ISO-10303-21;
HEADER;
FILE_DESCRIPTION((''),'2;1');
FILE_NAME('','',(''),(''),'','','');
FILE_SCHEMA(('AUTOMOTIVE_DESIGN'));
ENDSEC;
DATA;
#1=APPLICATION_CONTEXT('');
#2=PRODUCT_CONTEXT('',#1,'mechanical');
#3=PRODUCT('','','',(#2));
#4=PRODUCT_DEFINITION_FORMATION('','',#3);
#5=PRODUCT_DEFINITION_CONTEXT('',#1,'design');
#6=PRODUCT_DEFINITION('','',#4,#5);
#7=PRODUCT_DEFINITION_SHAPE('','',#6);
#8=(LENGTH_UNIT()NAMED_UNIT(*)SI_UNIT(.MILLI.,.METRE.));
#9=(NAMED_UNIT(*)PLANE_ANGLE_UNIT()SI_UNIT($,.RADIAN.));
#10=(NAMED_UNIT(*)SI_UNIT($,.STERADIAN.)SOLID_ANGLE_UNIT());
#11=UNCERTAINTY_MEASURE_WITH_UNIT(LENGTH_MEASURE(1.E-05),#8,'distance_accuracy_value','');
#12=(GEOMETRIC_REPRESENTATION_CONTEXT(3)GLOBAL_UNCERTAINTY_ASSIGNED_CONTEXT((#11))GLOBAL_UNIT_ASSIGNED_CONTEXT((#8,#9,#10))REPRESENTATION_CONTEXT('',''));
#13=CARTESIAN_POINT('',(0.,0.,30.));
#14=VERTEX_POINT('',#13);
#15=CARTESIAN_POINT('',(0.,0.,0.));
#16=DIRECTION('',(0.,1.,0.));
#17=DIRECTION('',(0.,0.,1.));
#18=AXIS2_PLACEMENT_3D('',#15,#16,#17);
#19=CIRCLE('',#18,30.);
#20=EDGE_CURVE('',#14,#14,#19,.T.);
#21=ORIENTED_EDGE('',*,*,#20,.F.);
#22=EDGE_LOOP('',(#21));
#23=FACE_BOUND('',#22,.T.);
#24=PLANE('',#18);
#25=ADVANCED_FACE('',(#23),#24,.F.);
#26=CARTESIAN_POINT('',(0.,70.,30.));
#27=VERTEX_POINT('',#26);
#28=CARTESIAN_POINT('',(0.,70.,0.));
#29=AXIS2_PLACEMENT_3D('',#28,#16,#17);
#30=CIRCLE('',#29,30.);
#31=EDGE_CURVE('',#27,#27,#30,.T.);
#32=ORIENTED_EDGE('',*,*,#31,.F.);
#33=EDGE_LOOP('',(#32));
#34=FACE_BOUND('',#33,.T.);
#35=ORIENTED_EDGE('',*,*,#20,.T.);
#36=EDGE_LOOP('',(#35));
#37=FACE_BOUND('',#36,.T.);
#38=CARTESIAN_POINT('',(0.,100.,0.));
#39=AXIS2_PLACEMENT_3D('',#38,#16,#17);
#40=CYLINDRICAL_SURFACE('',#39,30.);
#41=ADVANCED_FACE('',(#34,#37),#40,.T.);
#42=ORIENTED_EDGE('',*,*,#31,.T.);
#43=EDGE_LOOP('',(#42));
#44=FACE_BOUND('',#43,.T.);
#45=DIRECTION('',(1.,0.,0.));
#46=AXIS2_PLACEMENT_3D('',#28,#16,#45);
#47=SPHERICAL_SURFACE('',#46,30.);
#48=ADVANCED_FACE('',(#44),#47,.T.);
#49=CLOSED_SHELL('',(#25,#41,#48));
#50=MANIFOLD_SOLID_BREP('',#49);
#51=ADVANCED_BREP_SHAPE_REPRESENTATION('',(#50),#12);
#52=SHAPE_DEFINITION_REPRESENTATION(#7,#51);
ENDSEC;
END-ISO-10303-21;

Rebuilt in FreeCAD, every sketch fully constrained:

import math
import FreeCAD as App
import Part
import Sketcher

V = App.Vector
Q = App.Units.Quantity

doc = App.newDocument("Part")
body = doc.addObject("PartDesign::Body", "Body")

# Sketch on XY plane
sketch1 = doc.addObject("Sketcher::SketchObject", "Sketch")
body.addObject(sketch1)
sketch1.AttachmentSupport = (doc.XY_Plane, [""])
sketch1.MapMode = "FlatFace"
sketch1.addGeometry([
    Part.LineSegment(V(30, 0, 0), V(30, 70, 0)),
    Part.ArcOfCircle(Part.Circle(V(0, 70, 0), V(0, 0, 1), 30), math.radians(0), math.radians(90)),
    Part.LineSegment(V(0, 100, 0), V(0, 0, 0)),
    Part.LineSegment(V(0, 0, 0), V(30, 0, 0)),
], False)
sketch1.addConstraint([
    Sketcher.Constraint("Tangent", 0, 2, 1, 1),
    Sketcher.Constraint("Coincident", 1, 2, 2, 1),
    Sketcher.Constraint("Coincident", 2, 2, 3, 1),
    Sketcher.Constraint("Coincident", 3, 2, 0, 1),
    Sketcher.Constraint("Vertical", 0),
    Sketcher.Constraint("Vertical", 2),
    Sketcher.Constraint("Horizontal", 3),
    Sketcher.Constraint("Coincident", 2, 2, -1, 1),
    Sketcher.Constraint("PointOnObject", 1, 3, -2),
    Sketcher.Constraint("Radius", 1, Q("30 mm")),
    Sketcher.Constraint("DistanceY", 0, 1, 0, 2, Q("70 mm")),
])
revolution = doc.addObject("PartDesign::Revolution", "Revolution")
body.addObject(revolution)
revolution.Profile = sketch1
revolution.ReferenceAxis = (sketch1, ["V_Axis"])
revolution.Angle = 360

doc.recompute()
